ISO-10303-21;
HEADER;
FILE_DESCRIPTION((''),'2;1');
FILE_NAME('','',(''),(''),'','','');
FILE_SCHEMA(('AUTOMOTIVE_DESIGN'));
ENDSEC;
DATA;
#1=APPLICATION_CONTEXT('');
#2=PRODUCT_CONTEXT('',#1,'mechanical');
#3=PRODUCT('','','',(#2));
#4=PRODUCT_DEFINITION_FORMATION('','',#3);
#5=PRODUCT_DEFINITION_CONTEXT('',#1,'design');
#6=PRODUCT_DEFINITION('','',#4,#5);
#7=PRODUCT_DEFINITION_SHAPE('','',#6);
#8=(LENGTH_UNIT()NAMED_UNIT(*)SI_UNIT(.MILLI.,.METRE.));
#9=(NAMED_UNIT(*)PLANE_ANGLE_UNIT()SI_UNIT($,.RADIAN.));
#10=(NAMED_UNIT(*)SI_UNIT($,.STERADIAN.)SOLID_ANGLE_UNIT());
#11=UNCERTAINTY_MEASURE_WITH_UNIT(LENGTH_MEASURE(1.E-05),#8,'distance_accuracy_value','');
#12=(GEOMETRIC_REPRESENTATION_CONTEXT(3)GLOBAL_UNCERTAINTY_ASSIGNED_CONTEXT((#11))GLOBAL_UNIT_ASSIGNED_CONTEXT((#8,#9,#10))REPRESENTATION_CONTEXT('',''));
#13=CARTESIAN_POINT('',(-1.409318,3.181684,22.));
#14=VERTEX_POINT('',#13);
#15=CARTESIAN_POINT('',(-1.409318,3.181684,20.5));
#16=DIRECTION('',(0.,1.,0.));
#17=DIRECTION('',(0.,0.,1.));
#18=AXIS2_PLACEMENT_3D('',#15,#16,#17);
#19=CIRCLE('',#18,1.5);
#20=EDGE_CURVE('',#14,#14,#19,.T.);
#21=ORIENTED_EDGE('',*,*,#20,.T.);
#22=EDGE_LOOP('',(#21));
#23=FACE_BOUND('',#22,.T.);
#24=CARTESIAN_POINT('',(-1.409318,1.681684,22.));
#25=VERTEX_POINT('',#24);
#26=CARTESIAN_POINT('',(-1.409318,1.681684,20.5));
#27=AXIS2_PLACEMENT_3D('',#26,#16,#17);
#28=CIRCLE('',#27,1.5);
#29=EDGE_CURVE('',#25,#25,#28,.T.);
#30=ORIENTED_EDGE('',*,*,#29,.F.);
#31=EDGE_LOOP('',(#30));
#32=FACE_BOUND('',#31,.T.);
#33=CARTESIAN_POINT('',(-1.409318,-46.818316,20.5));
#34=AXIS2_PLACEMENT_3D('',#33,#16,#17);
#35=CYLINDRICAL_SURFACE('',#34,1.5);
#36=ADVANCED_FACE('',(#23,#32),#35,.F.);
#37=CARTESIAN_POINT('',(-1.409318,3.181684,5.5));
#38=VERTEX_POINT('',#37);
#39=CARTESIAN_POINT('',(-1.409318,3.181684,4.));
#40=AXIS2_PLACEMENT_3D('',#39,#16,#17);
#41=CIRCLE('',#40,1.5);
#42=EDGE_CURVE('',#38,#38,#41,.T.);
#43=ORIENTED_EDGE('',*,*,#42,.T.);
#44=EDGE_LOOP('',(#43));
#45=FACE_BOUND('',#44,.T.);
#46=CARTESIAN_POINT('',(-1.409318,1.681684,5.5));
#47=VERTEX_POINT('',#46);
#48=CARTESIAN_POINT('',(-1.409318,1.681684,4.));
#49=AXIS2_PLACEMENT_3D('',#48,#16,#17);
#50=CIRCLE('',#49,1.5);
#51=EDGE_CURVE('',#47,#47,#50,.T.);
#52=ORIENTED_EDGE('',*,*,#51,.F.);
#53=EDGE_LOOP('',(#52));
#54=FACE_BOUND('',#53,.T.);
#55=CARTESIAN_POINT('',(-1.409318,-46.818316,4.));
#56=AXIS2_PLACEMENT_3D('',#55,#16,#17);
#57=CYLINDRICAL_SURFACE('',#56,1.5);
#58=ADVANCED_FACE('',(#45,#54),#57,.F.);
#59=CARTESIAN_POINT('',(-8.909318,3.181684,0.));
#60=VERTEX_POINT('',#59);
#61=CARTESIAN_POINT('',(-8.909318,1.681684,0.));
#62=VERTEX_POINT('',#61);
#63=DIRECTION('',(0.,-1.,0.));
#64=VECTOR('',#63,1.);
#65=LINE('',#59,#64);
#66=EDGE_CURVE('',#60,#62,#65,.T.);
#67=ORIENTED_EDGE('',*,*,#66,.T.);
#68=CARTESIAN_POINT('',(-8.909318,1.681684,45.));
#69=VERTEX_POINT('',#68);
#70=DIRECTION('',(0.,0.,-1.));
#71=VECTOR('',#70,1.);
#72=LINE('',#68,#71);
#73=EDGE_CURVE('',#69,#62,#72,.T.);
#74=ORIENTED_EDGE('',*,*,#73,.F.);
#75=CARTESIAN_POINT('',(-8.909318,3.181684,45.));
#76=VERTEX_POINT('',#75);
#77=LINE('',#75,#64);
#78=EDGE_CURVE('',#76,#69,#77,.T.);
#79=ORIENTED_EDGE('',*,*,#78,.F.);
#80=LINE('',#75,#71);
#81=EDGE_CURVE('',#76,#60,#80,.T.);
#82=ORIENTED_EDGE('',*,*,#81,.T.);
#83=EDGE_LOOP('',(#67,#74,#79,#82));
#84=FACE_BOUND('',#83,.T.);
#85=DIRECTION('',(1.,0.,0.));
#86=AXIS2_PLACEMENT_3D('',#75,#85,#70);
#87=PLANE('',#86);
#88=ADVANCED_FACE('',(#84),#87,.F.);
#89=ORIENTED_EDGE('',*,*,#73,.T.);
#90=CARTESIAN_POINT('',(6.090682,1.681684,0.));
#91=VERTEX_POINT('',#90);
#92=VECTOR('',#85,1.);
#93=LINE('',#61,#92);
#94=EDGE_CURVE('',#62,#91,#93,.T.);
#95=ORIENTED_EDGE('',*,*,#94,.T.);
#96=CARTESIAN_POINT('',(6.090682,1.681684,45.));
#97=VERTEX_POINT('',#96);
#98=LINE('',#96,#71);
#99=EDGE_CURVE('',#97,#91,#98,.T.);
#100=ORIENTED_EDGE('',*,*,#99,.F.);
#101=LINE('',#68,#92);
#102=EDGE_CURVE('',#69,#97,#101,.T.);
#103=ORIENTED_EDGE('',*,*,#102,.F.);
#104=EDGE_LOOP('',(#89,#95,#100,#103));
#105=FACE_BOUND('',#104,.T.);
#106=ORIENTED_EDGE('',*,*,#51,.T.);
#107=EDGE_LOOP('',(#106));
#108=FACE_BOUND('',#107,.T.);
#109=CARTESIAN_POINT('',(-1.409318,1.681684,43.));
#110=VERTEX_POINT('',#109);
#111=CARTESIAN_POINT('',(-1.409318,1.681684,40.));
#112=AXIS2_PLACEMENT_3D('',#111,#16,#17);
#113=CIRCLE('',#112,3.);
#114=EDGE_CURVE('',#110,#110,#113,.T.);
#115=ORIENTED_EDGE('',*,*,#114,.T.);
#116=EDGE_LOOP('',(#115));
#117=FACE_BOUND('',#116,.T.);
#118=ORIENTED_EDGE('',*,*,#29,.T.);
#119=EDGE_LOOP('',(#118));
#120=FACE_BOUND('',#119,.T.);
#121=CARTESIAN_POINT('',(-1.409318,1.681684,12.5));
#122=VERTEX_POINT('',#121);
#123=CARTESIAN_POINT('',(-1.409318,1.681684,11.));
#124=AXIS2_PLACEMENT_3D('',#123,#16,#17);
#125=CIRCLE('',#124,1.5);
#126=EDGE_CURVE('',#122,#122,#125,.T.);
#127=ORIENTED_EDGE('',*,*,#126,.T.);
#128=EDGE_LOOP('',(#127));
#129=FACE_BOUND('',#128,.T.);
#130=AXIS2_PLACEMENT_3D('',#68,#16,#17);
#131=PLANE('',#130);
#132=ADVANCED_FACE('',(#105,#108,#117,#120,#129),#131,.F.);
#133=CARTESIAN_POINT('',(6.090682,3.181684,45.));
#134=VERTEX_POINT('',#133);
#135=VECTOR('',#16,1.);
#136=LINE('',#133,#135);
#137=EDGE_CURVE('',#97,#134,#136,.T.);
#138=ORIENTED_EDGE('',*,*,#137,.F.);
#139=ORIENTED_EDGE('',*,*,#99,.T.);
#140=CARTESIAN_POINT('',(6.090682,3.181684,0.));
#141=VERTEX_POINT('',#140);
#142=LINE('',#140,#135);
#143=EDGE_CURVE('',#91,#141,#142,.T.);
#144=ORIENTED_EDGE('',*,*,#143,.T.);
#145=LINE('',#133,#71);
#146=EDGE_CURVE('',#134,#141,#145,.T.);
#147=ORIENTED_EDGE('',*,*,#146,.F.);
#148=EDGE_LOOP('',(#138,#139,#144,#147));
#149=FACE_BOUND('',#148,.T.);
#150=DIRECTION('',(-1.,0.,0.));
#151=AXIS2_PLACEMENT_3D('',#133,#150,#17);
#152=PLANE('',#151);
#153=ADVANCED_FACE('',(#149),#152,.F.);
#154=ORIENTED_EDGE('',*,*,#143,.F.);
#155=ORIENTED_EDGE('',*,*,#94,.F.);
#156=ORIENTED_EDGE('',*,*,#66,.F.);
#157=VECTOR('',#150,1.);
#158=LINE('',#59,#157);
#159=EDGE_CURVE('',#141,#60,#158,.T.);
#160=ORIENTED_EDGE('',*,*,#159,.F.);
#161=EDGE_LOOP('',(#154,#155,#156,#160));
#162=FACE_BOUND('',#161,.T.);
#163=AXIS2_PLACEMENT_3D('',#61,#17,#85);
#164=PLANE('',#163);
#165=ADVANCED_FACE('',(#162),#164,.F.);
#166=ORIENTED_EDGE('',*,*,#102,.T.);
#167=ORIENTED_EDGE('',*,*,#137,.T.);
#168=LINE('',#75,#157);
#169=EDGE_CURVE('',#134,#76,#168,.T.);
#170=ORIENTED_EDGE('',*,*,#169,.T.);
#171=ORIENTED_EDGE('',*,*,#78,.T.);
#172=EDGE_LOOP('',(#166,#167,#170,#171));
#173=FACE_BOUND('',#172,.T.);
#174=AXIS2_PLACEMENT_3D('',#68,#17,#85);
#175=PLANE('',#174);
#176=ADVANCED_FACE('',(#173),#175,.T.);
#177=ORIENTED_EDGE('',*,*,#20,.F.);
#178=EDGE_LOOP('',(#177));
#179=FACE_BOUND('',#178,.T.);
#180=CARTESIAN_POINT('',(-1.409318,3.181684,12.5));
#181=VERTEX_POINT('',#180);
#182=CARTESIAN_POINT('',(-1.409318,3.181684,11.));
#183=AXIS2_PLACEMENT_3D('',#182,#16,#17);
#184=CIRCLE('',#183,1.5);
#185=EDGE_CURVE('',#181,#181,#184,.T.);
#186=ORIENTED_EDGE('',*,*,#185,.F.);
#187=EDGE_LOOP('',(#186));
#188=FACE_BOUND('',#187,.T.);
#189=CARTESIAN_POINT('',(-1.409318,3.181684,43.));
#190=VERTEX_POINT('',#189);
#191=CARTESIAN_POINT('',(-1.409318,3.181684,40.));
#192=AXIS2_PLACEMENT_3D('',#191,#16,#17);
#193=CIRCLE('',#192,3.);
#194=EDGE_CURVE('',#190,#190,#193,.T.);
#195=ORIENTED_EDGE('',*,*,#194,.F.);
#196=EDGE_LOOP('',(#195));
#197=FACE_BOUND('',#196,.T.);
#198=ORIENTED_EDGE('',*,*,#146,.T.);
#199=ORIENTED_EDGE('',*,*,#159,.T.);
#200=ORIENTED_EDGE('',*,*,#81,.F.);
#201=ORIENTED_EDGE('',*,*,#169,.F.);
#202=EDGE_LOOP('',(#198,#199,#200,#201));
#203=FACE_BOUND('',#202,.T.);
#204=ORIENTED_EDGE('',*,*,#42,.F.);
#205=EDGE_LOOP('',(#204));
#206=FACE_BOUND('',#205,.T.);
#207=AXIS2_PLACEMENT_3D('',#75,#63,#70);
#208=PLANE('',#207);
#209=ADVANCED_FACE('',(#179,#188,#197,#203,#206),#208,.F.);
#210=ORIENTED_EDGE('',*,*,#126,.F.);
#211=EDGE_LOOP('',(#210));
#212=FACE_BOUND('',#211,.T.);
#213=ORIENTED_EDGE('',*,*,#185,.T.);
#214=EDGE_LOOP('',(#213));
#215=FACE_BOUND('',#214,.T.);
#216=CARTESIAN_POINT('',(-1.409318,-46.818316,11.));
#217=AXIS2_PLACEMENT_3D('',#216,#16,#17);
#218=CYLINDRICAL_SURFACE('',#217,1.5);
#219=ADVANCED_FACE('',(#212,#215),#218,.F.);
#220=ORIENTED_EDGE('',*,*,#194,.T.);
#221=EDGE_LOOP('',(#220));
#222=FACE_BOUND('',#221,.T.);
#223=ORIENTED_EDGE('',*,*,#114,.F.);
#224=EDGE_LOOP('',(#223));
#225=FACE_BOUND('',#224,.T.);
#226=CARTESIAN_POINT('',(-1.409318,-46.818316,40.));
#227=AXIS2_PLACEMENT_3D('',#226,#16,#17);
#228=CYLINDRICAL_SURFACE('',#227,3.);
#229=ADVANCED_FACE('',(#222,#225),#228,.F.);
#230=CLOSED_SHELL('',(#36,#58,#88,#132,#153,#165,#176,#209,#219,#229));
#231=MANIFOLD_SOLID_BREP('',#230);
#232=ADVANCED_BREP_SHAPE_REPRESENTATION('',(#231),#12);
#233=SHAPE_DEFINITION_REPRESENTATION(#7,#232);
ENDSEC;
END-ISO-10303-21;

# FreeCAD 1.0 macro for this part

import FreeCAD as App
import Part
import Sketcher
Q = App.Units.Quantity

doc = App.newDocument("Part")
params = doc.addObject("Spreadsheet::Sheet", "Params")
for row, (alias, value) in enumerate([
    ("sketch1_width", "15 mm"),
    ("sketch1_height", "1.5 mm"),
    ("pad1_length", "45 mm"),
    ("sketch2_diameter", "3 mm"),
    ("sketch2_diameter2", "6 mm"),
    ("pocket1_length", "50 mm"),
], start=1):
    params.set(f"A{row}", alias)
    params.set(f"B{row}", "=" + value)
    params.setAlias(f"B{row}", alias)

body = doc.addObject("PartDesign::Body", "Body")

# Sketch on XY plane
sketch1 = body.newObject("Sketcher::SketchObject", "Sketch")
sketch1.AttachmentSupport = (doc.getObject("XY_Plane"), [""])
sketch1.MapMode = "FlatFace"
sketch1.addGeometry([
    Part.LineSegment(App.Vector(-8.9, 3.2, 0), App.Vector(-8.9, 1.7, 0)),
    Part.LineSegment(App.Vector(-8.9, 1.7, 0), App.Vector(6.1, 1.7, 0)),
    Part.LineSegment(App.Vector(6.1, 1.7, 0), App.Vector(6.1, 3.2, 0)),
    Part.LineSegment(App.Vector(6.1, 3.2, 0), App.Vector(-8.9, 3.2, 0)),
], False)
sketch1.addConstraint([
    Sketcher.Constraint("Coincident", 0, 2, 1, 1),
    Sketcher.Constraint("Coincident", 1, 2, 2, 1),
    Sketcher.Constraint("Coincident", 2, 2, 3, 1),
    Sketcher.Constraint("Coincident", 3, 2, 0, 1),
    Sketcher.Constraint("Vertical", 0),
    Sketcher.Constraint("Horizontal", 1),
    Sketcher.Constraint("Vertical", 2),
    Sketcher.Constraint("Horizontal", 3),
    Sketcher.Constraint("DistanceX", 1, 1, 1, 2, Q("15 mm")),
    Sketcher.Constraint("DistanceY", 0, 2, 0, 1, Q("1.5 mm")),
    Sketcher.Constraint("DistanceX", 0, 2, -1, 1, Q("8.909318 mm")),
    Sketcher.Constraint("DistanceY", -1, 1, 0, 2, Q("1.681684 mm")),
])
sketch1.setExpression("Constraints[8]", "Params.sketch1_width")
sketch1.setExpression("Constraints[9]", "Params.sketch1_height")
pad1 = body.newObject("PartDesign::Pad", "Pad")
pad1.Profile = sketch1
pad1.setExpression("Length", "Params.pad1_length")

# Sketch on XZ plane
sketch2 = body.newObject("Sketcher::SketchObject", "Sketch001")
sketch2.AttachmentSupport = (doc.getObject("XZ_Plane"), [""])
sketch2.MapMode = "FlatFace"
sketch2.AttachmentOffset = App.Placement(App.Vector(0, 0, -3.181684), App.Rotation())
sketch2.addGeometry([
    Part.Circle(App.Vector(-1.4, 4, 0), App.Vector(0, 0, 1), 1.5),
    Part.Circle(App.Vector(-1.4, 11, 0), App.Vector(0, 0, 1), 1.5),
    Part.Circle(App.Vector(-1.4, 20.5, 0), App.Vector(0, 0, 1), 1.5),
    Part.Circle(App.Vector(-1.4, 40, 0), App.Vector(0, 0, 1), 3),
], False)
sketch2.addConstraint([
    Sketcher.Constraint("Equal", 0, 1),
    Sketcher.Constraint("Equal", 1, 2),
    Sketcher.Constraint("Vertical", 0, 3, 1, 3),
    Sketcher.Constraint("Vertical", 1, 3, 2, 3),
    Sketcher.Constraint("Vertical", 2, 3, 3, 3),
    Sketcher.Constraint("Diameter", 0, Q("3 mm")),
    Sketcher.Constraint("Diameter", 3, Q("6 mm")),
    Sketcher.Constraint("DistanceY", -1, 1, 0, 3, Q("4 mm")),
    Sketcher.Constraint("DistanceY", -1, 1, 1, 3, Q("11 mm")),
    Sketcher.Constraint("DistanceY", -1, 1, 3, 3, Q("40 mm")),
    Sketcher.Constraint("DistanceY", -1, 1, 2, 3, Q("20.5 mm")),
    Sketcher.Constraint("DistanceX", 0, 3, -1, 1, Q("1.409318 mm")),
])
sketch2.setExpression("Constraints[5]", "Params.sketch2_diameter")
sketch2.setExpression("Constraints[6]", "Params.sketch2_diameter2")
pocket1 = body.newObject("PartDesign::Pocket", "Pocket")
pocket1.Profile = sketch2
pocket1.setExpression("Length", "Params.pocket1_length")
pocket1.Reversed = True

doc.recompute()
